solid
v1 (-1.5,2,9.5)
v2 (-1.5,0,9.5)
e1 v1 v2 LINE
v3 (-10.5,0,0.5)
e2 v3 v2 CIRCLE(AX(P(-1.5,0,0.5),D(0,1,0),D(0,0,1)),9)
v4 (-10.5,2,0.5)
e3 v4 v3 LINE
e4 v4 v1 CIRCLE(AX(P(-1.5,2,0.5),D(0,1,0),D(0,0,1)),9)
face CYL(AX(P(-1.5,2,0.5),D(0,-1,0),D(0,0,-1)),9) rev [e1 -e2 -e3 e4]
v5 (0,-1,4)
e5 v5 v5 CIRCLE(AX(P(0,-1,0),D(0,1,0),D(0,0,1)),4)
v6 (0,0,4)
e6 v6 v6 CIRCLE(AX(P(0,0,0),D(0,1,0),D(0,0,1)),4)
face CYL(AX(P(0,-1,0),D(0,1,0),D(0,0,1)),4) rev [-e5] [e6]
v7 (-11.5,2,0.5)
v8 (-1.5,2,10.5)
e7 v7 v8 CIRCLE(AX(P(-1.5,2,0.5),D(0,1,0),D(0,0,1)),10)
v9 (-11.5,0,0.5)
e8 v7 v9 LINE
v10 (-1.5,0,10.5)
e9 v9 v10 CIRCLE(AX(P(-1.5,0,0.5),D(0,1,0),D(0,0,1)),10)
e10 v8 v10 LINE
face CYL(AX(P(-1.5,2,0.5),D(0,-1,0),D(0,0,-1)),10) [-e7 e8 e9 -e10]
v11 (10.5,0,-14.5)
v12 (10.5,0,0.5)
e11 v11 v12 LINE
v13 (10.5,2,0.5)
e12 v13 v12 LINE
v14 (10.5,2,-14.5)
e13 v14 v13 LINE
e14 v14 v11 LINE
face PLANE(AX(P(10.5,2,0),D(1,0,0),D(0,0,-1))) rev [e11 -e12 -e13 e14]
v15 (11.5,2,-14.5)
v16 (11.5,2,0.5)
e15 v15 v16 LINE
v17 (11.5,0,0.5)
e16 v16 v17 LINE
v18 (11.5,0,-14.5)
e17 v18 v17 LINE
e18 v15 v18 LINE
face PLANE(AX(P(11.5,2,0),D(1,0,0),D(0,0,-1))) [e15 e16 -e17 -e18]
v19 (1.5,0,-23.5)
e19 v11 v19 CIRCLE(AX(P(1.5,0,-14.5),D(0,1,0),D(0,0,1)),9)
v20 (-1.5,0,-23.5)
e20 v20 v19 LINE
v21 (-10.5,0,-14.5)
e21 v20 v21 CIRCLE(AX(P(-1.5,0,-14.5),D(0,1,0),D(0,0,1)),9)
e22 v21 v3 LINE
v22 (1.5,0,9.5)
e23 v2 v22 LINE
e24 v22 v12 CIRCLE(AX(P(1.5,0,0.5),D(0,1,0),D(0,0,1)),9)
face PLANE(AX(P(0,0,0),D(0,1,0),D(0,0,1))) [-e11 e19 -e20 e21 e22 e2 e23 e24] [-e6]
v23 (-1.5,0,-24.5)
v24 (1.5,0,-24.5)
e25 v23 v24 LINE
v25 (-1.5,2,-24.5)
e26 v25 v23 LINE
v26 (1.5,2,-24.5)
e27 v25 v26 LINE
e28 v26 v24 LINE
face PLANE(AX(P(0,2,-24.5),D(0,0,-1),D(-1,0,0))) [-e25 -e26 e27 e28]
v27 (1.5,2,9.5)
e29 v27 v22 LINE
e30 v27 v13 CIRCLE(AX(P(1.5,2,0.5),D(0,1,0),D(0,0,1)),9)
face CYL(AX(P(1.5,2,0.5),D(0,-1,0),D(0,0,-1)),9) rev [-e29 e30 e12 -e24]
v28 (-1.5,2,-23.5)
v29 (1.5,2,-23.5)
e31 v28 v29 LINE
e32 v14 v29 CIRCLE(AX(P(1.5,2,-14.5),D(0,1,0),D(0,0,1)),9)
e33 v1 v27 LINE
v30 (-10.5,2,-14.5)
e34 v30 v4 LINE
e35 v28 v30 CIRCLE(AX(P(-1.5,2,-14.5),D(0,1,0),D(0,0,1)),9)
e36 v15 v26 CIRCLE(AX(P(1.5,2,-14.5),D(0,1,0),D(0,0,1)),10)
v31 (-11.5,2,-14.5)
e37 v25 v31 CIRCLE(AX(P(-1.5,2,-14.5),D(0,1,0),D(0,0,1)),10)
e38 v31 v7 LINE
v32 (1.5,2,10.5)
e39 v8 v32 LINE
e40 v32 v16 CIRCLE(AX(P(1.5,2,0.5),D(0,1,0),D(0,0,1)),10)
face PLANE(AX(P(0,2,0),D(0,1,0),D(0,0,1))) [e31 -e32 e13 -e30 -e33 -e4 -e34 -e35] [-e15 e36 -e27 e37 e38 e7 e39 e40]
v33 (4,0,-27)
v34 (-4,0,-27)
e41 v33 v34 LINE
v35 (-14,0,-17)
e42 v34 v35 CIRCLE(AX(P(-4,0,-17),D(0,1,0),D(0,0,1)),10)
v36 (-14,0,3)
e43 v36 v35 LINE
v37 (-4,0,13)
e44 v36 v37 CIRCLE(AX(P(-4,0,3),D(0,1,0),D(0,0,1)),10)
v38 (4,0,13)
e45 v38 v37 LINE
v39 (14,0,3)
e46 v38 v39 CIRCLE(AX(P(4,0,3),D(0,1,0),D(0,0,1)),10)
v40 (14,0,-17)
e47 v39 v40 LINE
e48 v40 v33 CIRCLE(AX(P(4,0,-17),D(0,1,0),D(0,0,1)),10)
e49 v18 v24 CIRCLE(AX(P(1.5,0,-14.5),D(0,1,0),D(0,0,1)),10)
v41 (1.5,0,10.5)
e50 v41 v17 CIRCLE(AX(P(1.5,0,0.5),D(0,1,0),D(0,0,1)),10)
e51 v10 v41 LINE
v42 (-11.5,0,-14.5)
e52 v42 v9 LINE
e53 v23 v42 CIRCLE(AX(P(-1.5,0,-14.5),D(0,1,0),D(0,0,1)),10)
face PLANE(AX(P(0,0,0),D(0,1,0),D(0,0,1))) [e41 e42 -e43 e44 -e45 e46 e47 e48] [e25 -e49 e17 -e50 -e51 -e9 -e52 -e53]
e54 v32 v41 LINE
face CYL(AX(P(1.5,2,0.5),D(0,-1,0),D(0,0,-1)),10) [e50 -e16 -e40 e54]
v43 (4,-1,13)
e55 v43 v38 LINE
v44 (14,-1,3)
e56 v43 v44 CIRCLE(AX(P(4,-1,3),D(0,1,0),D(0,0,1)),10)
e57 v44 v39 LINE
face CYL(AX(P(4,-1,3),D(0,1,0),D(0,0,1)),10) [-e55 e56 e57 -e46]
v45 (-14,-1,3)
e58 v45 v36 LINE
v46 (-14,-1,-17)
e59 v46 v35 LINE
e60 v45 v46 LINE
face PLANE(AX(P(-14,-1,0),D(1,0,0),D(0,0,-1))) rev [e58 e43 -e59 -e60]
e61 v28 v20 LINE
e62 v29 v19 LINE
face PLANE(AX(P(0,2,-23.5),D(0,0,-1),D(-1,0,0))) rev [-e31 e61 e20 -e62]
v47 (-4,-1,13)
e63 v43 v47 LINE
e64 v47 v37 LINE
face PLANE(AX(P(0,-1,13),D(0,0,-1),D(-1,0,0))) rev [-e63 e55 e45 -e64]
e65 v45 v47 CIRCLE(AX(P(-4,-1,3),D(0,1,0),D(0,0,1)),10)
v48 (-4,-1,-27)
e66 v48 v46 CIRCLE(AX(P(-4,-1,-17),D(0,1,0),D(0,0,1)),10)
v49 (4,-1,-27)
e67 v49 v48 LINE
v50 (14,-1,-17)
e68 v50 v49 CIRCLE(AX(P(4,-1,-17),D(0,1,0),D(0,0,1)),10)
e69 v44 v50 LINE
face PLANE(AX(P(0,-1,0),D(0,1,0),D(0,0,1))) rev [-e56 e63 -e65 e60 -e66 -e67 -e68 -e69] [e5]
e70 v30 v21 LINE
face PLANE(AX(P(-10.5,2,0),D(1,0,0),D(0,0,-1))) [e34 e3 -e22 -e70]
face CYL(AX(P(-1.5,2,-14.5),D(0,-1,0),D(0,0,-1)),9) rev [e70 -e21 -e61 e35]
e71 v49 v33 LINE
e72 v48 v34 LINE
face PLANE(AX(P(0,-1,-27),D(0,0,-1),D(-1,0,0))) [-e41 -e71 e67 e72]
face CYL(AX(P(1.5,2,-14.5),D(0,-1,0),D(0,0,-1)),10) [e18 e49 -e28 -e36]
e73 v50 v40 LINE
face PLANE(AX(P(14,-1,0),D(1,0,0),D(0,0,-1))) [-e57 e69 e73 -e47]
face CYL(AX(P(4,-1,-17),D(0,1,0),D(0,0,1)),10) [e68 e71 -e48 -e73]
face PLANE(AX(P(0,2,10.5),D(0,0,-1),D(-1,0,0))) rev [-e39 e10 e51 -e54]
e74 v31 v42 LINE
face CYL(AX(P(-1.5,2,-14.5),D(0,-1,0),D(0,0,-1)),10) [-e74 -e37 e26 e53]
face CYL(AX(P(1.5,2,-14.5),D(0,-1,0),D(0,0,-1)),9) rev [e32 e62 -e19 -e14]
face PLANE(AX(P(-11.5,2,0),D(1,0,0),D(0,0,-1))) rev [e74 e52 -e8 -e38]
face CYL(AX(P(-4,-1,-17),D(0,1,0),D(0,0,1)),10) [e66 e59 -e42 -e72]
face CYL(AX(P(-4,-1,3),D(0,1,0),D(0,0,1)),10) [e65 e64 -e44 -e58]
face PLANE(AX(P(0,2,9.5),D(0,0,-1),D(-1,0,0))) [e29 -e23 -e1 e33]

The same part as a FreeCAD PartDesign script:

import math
import FreeCAD as App
import Part
import Sketcher

doc = App.newDocument("Part")
body = doc.addObject("PartDesign::Body", "Body")

# Sketch on XZ plane
sketch1 = doc.addObject("Sketcher::SketchObject", "Sketch")
body.addObject(sketch1)
sketch1.AttachmentSupport = (doc.XZ_Plane, [""])
sketch1.MapMode = "FlatFace"
sketch1.addGeometry([
    Part.LineSegment(App.Vector(-11.5, -14.5, 0), App.Vector(-11.5, 0.5, 0)),  # 0
    Part.ArcOfCircle(Part.Circle(App.Vector(-1.5, 0.5, 0), App.Vector(0, 0, 1), 10), math.radians(90), math.radians(180)),  # 1
    Part.LineSegment(App.Vector(-1.5, 10.5, 0), App.Vector(1.5, 10.5, 0)),  # 2
    Part.ArcOfCircle(Part.Circle(App.Vector(1.5, 0.5, 0), App.Vector(0, 0, 1), 10), math.radians(0), math.radians(90)),  # 3
    Part.LineSegment(App.Vector(11.5, 0.5, 0), App.Vector(11.5, -14.5, 0)),  # 4
    Part.ArcOfCircle(Part.Circle(App.Vector(1.5, -14.5, 0), App.Vector(0, 0, 1), 10), math.radians(-90), math.radians(0)),  # 5
    Part.LineSegment(App.Vector(1.5, -24.5, 0), App.Vector(-1.5, -24.5, 0)),  # 6
    Part.ArcOfCircle(Part.Circle(App.Vector(-1.5, -14.5, 0), App.Vector(0, 0, 1), 10), math.radians(180), math.radians(270)),  # 7
    Part.ArcOfCircle(Part.Circle(App.Vector(-1.5, -14.5, 0), App.Vector(0, 0, 1), 9), math.radians(180), math.radians(270)),  # 8
    Part.LineSegment(App.Vector(-1.5, -23.5, 0), App.Vector(1.5, -23.5, 0)),  # 9
    Part.ArcOfCircle(Part.Circle(App.Vector(1.5, -14.5, 0), App.Vector(0, 0, 1), 9), math.radians(-90), math.radians(0)),  # 10
    Part.LineSegment(App.Vector(10.5, -14.5, 0), App.Vector(10.5, 0.5, 0)),  # 11
    Part.ArcOfCircle(Part.Circle(App.Vector(1.5, 0.5, 0), App.Vector(0, 0, 1), 9), math.radians(0), math.radians(90)),  # 12
    Part.LineSegment(App.Vector(1.5, 9.5, 0), App.Vector(-1.5, 9.5, 0)),  # 13
    Part.ArcOfCircle(Part.Circle(App.Vector(-1.5, 0.5, 0), App.Vector(0, 0, 1), 9), math.radians(90), math.radians(180)),  # 14
    Part.LineSegment(App.Vector(-10.5, 0.5, 0), App.Vector(-10.5, -14.5, 0)),  # 15
], False)
sketch1.addConstraint([
    Sketcher.Constraint("Tangent", 0, 2, 1, 2),
    Sketcher.Constraint("Tangent", 1, 1, 2, 1),
    Sketcher.Constraint("Tangent", 2, 2, 3, 2),
    Sketcher.Constraint("Tangent", 3, 1, 4, 1),
    Sketcher.Constraint("Tangent", 4, 2, 5, 2),
    Sketcher.Constraint("Tangent", 5, 1, 6, 1),
    Sketcher.Constraint("Tangent", 6, 2, 7, 2),
    Sketcher.Constraint("Tangent", 7, 1, 0, 1),
    Sketcher.Constraint("Tangent", 8, 2, 9, 1),
    Sketcher.Constraint("Tangent", 9, 2, 10, 1),
    Sketcher.Constraint("Tangent", 10, 2, 11, 1),
    Sketcher.Constraint("Tangent", 11, 2, 12, 1),
    Sketcher.Constraint("Tangent", 12, 2, 13, 1),
    Sketcher.Constraint("Tangent", 13, 2, 14, 1),
    Sketcher.Constraint("Tangent", 14, 2, 15, 1),
    Sketcher.Constraint("Tangent", 15, 2, 8, 1),
    Sketcher.Constraint("Vertical", 0),
    Sketcher.Constraint("Horizontal", 2),
    Sketcher.Constraint("Vertical", 4),
    Sketcher.Constraint("Horizontal", 6),
    Sketcher.Constraint("Horizontal", 9),
    Sketcher.Constraint("Vertical", 11),
    Sketcher.Constraint("Horizontal", 13),
    Sketcher.Constraint("Vertical", 15),
    Sketcher.Constraint("Coincident", 8, 3, 7, 3),
    Sketcher.Constraint("Coincident", 10, 3, 5, 3),
    Sketcher.Constraint("Coincident", 12, 3, 3, 3),
    Sketcher.Constraint("Equal", 1, 3),
    Sketcher.Constraint("Equal", 3, 5),
    Sketcher.Constraint("Equal", 5, 7),
    Sketcher.Constraint("Equal", 12, 14),
    Sketcher.Constraint("Radius", 1, 10.0),
    Sketcher.Constraint("Radius", 8, 9.0),
    Sketcher.Constraint("DistanceX", 2, 1, 2, 2, 3.0),
    Sketcher.Constraint("DistanceY", 0, 1, 0, 2, 15.0),
    Sketcher.Constraint("DistanceX", 1, 3, -1, 1, 1.5),
    Sketcher.Constraint("DistanceY", -1, 1, 1, 3, 0.5),
])
pad1 = doc.addObject("PartDesign::Pad", "Pad")
body.addObject(pad1)
pad1.Profile = sketch1
pad1.Length = 2
pad1.Reversed = True

# Sketch on XZ plane
sketch2 = doc.addObject("Sketcher::SketchObject", "Sketch001")
body.addObject(sketch2)
sketch2.AttachmentSupport = (doc.XZ_Plane, [""])
sketch2.MapMode = "FlatFace"
sketch2.addGeometry([
    Part.LineSegment(App.Vector(4, -27, 0), App.Vector(-4, -27, 0)),  # 0
    Part.ArcOfCircle(Part.Circle(App.Vector(-4, -17, 0), App.Vector(0, 0, 1), 10), math.radians(180), math.radians(270)),  # 1
    Part.LineSegment(App.Vector(-14, -17, 0), App.Vector(-14, 3, 0)),  # 2
    Part.ArcOfCircle(Part.Circle(App.Vector(-4, 3, 0), App.Vector(0, 0, 1), 10), math.radians(90), math.radians(180)),  # 3
    Part.LineSegment(App.Vector(-4, 13, 0), App.Vector(4, 13, 0)),  # 4
    Part.ArcOfCircle(Part.Circle(App.Vector(4, 3, 0), App.Vector(0, 0, 1), 10), math.radians(0), math.radians(90)),  # 5
    Part.LineSegment(App.Vector(14, 3, 0), App.Vector(14, -17, 0)),  # 6
    Part.ArcOfCircle(Part.Circle(App.Vector(4, -17, 0), App.Vector(0, 0, 1), 10), math.radians(-90), math.radians(0)),  # 7
], False)
sketch2.addConstraint([
    Sketcher.Constraint("Tangent", 0, 2, 1, 2),
    Sketcher.Constraint("Tangent", 1, 1, 2, 1),
    Sketcher.Constraint("Tangent", 2, 2, 3, 2),
    Sketcher.Constraint("Tangent", 3, 1, 4, 1),
    Sketcher.Constraint("Tangent", 4, 2, 5, 2),
    Sketcher.Constraint("Tangent", 5, 1, 6, 1),
    Sketcher.Constraint("Tangent", 6, 2, 7, 2),
    Sketcher.Constraint("Tangent", 7, 1, 0, 1),
    Sketcher.Constraint("Horizontal", 0),
    Sketcher.Constraint("Vertical", 2),
    Sketcher.Constraint("Horizontal", 4),
    Sketcher.Constraint("Vertical", 6),
    Sketcher.Constraint("Equal", 1, 3),
    Sketcher.Constraint("Equal", 3, 5),
    Sketcher.Constraint("Equal", 5, 7),
    Sketcher.Constraint("Radius", 1, 10.0),
    Sketcher.Constraint("DistanceX", 0, 2, 0, 1, 8.0),
    Sketcher.Constraint("DistanceY", 2, 1, 2, 2, 20.0),
    Sketcher.Constraint("DistanceX", 1, 3, -1, 1, 4.0),
    Sketcher.Constraint("DistanceY", 1, 3, -1, 1, 17.0),
])
pad2 = doc.addObject("PartDesign::Pad", "Pad001")
body.addObject(pad2)
pad2.Profile = sketch2
pad2.Length = 1

# Sketch on XZ plane
sketch3 = doc.addObject("Sketcher::SketchObject", "Sketch002")
body.addObject(sketch3)
sketch3.AttachmentSupport = (doc.XZ_Plane, [""])
sketch3.MapMode = "FlatFace"
sketch3.addGeometry(Part.Circle(App.Vector(0, 0, 0), App.Vector(0, 0, 1), 4), False)
sketch3.addConstraint([
    Sketcher.Constraint("Coincident", 0, 3, -1, 1),
    Sketcher.Constraint("Diameter", 0, 8.0),
])
pocket1 = doc.addObject("PartDesign::Pocket", "Pocket")
body.addObject(pocket1)
pocket1.Profile = sketch3
pocket1.Type = "ThroughAll"
pocket1.Midplane = True

doc.recompute()
